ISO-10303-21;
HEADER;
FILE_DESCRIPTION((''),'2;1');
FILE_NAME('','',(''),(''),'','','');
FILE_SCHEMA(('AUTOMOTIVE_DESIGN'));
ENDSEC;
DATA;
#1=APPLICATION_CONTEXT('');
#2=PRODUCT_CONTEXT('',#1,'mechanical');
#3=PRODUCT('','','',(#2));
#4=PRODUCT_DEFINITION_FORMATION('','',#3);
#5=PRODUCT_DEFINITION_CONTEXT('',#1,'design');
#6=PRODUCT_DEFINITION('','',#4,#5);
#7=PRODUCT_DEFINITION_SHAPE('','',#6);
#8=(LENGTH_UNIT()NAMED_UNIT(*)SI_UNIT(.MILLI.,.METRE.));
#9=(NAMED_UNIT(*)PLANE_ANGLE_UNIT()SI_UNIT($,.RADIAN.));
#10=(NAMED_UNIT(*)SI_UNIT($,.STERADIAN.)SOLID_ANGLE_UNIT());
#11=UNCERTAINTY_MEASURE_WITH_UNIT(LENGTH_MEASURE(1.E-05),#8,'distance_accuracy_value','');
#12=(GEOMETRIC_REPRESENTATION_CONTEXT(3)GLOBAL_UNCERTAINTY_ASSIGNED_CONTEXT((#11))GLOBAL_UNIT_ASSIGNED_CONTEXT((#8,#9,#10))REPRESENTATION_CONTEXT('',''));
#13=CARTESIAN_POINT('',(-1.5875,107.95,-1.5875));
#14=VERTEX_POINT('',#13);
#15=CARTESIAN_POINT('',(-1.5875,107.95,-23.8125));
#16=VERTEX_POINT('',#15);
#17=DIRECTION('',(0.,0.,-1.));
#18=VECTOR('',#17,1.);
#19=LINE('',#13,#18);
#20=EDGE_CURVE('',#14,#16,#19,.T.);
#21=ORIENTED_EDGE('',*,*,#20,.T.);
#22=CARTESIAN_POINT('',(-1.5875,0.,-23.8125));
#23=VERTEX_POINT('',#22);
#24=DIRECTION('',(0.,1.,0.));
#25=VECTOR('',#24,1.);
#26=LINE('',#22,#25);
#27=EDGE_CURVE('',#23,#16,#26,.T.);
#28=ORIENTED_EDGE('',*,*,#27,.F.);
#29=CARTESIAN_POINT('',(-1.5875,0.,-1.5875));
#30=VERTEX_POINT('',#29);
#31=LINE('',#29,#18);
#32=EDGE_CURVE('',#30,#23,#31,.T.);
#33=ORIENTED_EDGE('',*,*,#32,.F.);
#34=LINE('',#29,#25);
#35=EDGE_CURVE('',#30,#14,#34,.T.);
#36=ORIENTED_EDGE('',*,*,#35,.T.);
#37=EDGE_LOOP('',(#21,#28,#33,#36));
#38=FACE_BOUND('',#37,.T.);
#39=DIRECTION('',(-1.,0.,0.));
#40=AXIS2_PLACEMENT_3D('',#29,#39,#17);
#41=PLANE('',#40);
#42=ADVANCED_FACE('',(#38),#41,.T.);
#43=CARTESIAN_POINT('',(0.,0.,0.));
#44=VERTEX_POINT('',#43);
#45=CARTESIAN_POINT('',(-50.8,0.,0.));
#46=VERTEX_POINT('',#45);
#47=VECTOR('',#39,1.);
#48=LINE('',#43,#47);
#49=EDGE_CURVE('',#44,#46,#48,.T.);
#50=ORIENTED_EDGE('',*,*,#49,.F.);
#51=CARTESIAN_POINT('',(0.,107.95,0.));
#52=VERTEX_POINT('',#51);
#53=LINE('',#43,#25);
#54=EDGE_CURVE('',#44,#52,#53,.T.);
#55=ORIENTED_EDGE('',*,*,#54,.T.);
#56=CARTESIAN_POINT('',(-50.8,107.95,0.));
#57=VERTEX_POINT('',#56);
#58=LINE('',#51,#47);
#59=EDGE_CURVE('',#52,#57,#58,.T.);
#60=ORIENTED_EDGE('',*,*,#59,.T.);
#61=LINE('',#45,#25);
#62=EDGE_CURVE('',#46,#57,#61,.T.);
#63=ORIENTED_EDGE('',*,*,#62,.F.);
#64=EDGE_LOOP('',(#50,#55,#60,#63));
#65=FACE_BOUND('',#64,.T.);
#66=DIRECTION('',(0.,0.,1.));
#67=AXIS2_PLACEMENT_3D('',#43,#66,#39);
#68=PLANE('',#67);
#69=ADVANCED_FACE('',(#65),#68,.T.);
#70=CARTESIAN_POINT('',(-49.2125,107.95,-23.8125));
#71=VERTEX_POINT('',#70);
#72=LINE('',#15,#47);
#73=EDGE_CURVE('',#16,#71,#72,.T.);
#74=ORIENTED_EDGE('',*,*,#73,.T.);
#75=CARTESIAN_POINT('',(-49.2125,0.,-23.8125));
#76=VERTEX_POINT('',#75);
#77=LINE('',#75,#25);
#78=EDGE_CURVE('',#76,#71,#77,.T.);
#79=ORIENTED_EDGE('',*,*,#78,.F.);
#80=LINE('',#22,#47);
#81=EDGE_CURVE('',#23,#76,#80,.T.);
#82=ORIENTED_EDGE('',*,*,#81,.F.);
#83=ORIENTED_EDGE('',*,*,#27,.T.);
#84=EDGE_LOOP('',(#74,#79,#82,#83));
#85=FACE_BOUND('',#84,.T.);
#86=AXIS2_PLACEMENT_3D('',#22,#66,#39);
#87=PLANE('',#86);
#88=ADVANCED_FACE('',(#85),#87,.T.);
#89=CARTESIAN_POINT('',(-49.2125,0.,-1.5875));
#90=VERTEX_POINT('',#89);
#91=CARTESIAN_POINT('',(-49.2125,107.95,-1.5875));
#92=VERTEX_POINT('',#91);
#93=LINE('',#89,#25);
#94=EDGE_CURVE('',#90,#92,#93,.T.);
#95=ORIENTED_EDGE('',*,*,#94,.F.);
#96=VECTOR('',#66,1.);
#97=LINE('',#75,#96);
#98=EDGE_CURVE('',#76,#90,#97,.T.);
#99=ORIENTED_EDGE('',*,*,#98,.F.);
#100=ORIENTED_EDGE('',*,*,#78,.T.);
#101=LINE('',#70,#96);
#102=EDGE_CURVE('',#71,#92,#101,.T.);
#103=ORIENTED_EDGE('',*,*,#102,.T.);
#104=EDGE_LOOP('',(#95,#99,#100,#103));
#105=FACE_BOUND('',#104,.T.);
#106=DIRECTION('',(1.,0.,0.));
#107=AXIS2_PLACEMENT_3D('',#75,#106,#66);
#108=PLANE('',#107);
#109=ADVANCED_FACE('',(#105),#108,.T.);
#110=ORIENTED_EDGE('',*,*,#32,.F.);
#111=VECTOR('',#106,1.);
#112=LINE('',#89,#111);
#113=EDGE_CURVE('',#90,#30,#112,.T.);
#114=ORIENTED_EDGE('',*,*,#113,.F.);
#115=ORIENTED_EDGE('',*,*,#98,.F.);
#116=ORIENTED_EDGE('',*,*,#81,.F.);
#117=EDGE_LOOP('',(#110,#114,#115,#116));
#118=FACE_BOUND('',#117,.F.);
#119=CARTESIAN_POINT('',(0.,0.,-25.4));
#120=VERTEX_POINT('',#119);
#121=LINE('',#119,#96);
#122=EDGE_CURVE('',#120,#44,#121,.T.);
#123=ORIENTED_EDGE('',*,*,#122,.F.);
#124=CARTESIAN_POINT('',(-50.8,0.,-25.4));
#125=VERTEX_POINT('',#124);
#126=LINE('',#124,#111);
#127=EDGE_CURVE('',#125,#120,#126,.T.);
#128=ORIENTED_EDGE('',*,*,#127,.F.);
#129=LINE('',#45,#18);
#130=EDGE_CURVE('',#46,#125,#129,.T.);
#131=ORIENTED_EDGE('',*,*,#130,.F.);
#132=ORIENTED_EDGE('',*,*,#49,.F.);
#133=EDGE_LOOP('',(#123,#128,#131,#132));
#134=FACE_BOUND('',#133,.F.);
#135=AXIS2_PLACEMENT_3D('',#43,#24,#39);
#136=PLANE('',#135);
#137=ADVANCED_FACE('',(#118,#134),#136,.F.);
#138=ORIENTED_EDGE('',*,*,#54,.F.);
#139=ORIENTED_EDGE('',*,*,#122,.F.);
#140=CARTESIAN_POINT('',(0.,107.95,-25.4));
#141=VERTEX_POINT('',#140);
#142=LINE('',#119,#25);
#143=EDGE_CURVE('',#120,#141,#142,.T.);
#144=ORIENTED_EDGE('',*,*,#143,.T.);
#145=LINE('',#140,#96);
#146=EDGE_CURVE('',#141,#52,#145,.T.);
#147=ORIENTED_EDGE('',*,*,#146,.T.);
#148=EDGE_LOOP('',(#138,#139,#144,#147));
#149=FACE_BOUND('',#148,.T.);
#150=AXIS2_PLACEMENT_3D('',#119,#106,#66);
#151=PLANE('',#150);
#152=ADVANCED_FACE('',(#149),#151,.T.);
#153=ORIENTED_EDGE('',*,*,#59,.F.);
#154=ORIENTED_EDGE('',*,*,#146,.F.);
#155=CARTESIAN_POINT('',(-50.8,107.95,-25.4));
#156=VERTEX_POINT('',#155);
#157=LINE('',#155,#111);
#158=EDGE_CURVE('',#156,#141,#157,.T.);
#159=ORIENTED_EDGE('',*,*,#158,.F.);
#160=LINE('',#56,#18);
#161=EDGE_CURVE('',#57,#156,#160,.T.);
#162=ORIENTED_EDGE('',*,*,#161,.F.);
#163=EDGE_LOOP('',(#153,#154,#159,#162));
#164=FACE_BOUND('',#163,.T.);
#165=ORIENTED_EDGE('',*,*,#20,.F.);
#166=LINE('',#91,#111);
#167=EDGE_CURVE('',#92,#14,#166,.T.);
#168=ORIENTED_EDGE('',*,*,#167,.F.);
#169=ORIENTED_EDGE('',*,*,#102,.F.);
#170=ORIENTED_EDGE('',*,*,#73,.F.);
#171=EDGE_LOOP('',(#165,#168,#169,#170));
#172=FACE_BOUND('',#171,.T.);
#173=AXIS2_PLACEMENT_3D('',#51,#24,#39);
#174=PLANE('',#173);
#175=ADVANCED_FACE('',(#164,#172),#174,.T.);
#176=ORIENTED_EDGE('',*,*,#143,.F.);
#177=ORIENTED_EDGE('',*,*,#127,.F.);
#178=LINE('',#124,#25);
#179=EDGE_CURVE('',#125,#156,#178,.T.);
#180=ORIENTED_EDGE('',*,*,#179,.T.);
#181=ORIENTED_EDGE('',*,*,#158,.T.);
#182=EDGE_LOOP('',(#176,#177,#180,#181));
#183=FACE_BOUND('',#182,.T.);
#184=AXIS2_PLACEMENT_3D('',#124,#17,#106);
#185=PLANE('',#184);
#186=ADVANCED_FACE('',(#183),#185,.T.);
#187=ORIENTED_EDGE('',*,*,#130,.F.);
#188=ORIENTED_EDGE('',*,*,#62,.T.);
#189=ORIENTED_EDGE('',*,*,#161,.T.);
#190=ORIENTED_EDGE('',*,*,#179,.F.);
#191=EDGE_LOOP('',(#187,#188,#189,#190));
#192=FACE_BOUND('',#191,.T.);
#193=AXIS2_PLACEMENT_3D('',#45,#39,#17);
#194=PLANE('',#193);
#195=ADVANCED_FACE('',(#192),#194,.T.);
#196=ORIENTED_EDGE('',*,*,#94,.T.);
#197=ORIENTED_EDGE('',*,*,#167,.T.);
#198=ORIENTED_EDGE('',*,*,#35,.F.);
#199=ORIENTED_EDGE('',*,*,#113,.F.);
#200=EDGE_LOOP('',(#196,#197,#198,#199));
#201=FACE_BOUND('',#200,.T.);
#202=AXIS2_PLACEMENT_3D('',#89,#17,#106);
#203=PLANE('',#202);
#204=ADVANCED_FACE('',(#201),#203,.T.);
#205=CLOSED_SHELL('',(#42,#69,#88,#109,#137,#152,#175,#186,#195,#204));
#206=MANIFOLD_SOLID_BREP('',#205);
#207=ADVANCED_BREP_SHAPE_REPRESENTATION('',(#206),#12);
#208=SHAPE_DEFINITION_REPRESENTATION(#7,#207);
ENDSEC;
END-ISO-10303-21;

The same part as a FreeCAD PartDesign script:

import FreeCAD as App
import Part
import Sketcher

V = App.Vector
Q = App.Units.Quantity

doc = App.newDocument("Part")
body = doc.addObject("PartDesign::Body", "Body")

# Sketch on XZ plane
sketch1 = body.newObject("Sketcher::SketchObject", "Sketch")
sketch1.AttachmentSupport = (doc.getObject("XZ_Plane"), [""])
sketch1.MapMode = "FlatFace"
sketch1.addGeometry(Part.LineSegment(V(-51, 0, 0), V(0, 0, 0)), False)
sketch1.addGeometry(Part.LineSegment(V(0, 0, 0), V(0, -25, 0)), False)
sketch1.addGeometry(Part.LineSegment(V(0, -25, 0), V(-51, -25, 0)), False)
sketch1.addGeometry(Part.LineSegment(V(-51, -25, 0), V(-51, 0, 0)), False)
sketch1.addGeometry(Part.LineSegment(V(-2, -2, 0), V(-49, -2, 0)), False)
sketch1.addGeometry(Part.LineSegment(V(-49, -2, 0), V(-49, -24, 0)), False)
sketch1.addGeometry(Part.LineSegment(V(-49, -24, 0), V(-2, -24, 0)), False)
sketch1.addGeometry(Part.LineSegment(V(-2, -24, 0), V(-2, -2, 0)), False)
sketch1.addConstraint(Sketcher.Constraint("Coincident", 0, 2, 1, 1))
sketch1.addConstraint(Sketcher.Constraint("Coincident", 1, 2, 2, 1))
sketch1.addConstraint(Sketcher.Constraint("Coincident", 2, 2, 3, 1))
sketch1.addConstraint(Sketcher.Constraint("Coincident", 3, 2, 0, 1))
sketch1.addConstraint(Sketcher.Constraint("Coincident", 4, 2, 5, 1))
sketch1.addConstraint(Sketcher.Constraint("Coincident", 5, 2, 6, 1))
sketch1.addConstraint(Sketcher.Constraint("Coincident", 6, 2, 7, 1))
sketch1.addConstraint(Sketcher.Constraint("Coincident", 7, 2, 4, 1))
sketch1.addConstraint(Sketcher.Constraint("Horizontal", 0))
sketch1.addConstraint(Sketcher.Constraint("Vertical", 1))
sketch1.addConstraint(Sketcher.Constraint("Horizontal", 2))
sketch1.addConstraint(Sketcher.Constraint("Vertical", 3))
sketch1.addConstraint(Sketcher.Constraint("Horizontal", 4))
sketch1.addConstraint(Sketcher.Constraint("Vertical", 5))
sketch1.addConstraint(Sketcher.Constraint("Horizontal", 6))
sketch1.addConstraint(Sketcher.Constraint("Vertical", 7))
sketch1.addConstraint(Sketcher.Constraint("Coincident", 0, 2, -1, 1))
sketch1.addConstraint(Sketcher.Constraint("DistanceX", 0, 1, 0, 2, Q("2 in")))
sketch1.addConstraint(Sketcher.Constraint("DistanceY", 1, 2, 1, 1, Q("1 in")))
sketch1.addConstraint(Sketcher.Constraint("DistanceY", 4, 2, -1, 1, Q("0.0625 in")))
sketch1.addConstraint(Sketcher.Constraint("DistanceX", 6, 2, -1, 1, Q("0.0625 in")))
sketch1.addConstraint(Sketcher.Constraint("DistanceX", 3, 2, 4, 2, Q("0.0625 in")))
sketch1.addConstraint(Sketcher.Constraint("DistanceY", 2, 2, 5, 2, Q("0.0625 in")))
pad1 = body.newObject("PartDesign::Pad", "Pad")
pad1.Profile = sketch1
pad1.Length = Q("4.25 in")
pad1.Reversed = True

doc.recompute()
